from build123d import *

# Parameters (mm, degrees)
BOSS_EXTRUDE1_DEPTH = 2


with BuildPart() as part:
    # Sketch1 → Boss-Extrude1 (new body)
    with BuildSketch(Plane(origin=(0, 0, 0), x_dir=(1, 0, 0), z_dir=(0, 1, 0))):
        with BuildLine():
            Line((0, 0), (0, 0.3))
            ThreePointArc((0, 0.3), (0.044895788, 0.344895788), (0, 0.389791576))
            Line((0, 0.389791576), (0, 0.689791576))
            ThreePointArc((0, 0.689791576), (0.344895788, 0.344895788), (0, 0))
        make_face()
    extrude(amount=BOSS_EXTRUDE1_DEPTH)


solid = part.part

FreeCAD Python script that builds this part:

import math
import FreeCAD as App
import Part
import Sketcher
from FreeCAD import Vector
Q = App.Units.Quantity

doc = App.newDocument("Part")
body = doc.addObject("PartDesign::Body", "Body")

sketch1 = doc.addObject("Sketcher::SketchObject", "Sketch")
body.addObject(sketch1)
sketch1.AttachmentSupport = (doc.XZ_Plane, [""])
sketch1.MapMode = "FlatFace"
sketch1.addGeometry(Part.LineSegment(Vector(0, -0.3, 0), Vector(0, 0, 0)), False)
sketch1.addGeometry(Part.ArcOfCircle(Part.Circle(Vector(0, -0.345, 0), Vector(0, 0, 1), 0.345), math.radians(-90), math.radians(90)), False)
sketch1.addGeometry(Part.LineSegment(Vector(0, -0.69, 0), Vector(0, -0.39, 0)), False)
sketch1.addGeometry(Part.ArcOfCircle(Part.Circle(Vector(0, -0.345, 0), Vector(0, 0, 1), 0.045), math.radians(-90), math.radians(90)), False)
sketch1.addConstraint(Sketcher.Constraint("Coincident", 0, 2, 1, 2))
sketch1.addConstraint(Sketcher.Constraint("Coincident", 1, 1, 2, 1))
sketch1.addConstraint(Sketcher.Constraint("Coincident", 2, 2, 3, 1))
sketch1.addConstraint(Sketcher.Constraint("Coincident", 3, 2, 0, 1))
sketch1.addConstraint(Sketcher.Constraint("Vertical", 0))
sketch1.addConstraint(Sketcher.Constraint("Vertical", 2))
sketch1.addConstraint(Sketcher.Constraint("Coincident", 0, 2, -1, 1))
sketch1.addConstraint(Sketcher.Constraint("Coincident", 3, 3, 1, 3))
sketch1.addConstraint(Sketcher.Constraint("PointOnObject", 1, 3, -2))
sketch1.addConstraint(Sketcher.Constraint("PointOnObject", 1, 1, -2))
sketch1.addConstraint(Sketcher.Constraint("DistanceY", 0, 1, 0, 2, Q("0.3 mm")))
sketch1.addConstraint(Sketcher.Constraint("Radius", 1, Q("0.344896 mm")))
pad1 = doc.addObject("PartDesign::Pad", "Pad")
body.addObject(pad1)
pad1.Profile = sketch1
pad1.Length = 2
pad1.Reversed = True

doc.recompute()
